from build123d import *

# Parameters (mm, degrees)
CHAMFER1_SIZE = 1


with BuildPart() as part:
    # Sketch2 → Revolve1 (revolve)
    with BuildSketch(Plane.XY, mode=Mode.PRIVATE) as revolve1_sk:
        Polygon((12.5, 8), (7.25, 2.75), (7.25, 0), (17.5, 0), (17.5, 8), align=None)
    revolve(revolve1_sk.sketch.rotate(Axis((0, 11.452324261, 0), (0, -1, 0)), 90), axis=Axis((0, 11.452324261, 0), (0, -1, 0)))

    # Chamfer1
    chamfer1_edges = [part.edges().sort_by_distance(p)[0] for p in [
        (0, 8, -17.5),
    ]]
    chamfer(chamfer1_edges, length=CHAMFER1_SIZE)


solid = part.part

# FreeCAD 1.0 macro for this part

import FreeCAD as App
import Part
import Sketcher
from FreeCAD import Vector
Q = App.Units.Quantity


def edges_at(feature, points):
    """Names of the edges that pass closest to the given points."""
    edges = feature.Shape.Edges
    near = lambda p: min(range(len(edges)), key=lambda i: edges[i].distToShape(Part.Vertex(*p))[0])
    return sorted({f"Edge{near(p) + 1}" for p in points})

doc = App.newDocument("Part")
body = doc.addObject("PartDesign::Body", "Body")

# Sketch on XY plane
sketch1 = body.newObject("Sketcher::SketchObject", "Sketch")
sketch1.AttachmentSupport = (doc.getObject("XY_Plane"), [""])
sketch1.MapMode = "FlatFace"
sketch1.addGeometry([
    Part.LineSegment(Vector(12.5, 8, 0), Vector(7.2, 2.8, 0)),  # 0
    Part.LineSegment(Vector(7.2, 2.8, 0), Vector(7.2, 0, 0)),  # 1
    Part.LineSegment(Vector(7.2, 0, 0), Vector(17.5, 0, 0)),  # 2
    Part.LineSegment(Vector(17.5, 0, 0), Vector(17.5, 8, 0)),  # 3
    Part.LineSegment(Vector(17.5, 8, 0), Vector(12.5, 8, 0)),  # 4
], False)
sketch1.addConstraint([
    Sketcher.Constraint("Coincident", 0, 2, 1, 1),
    Sketcher.Constraint("Coincident", 1, 2, 2, 1),
    Sketcher.Constraint("Coincident", 2, 2, 3, 1),
    Sketcher.Constraint("Coincident", 3, 2, 4, 1),
    Sketcher.Constraint("Coincident", 4, 2, 0, 1),
    Sketcher.Constraint("Vertical", 1),
    Sketcher.Constraint("Horizontal", 2),
    Sketcher.Constraint("Vertical", 3),
    Sketcher.Constraint("Horizontal", 4),
    Sketcher.Constraint("PointOnObject", 1, 2, -1),
    Sketcher.Constraint("DistanceX", 4, 2, 4, 1, 5.0),
    Sketcher.Constraint("DistanceY", 3, 1, 3, 2, 8.0),
    Sketcher.Constraint("Angle", 0, Q("-135 deg")),
    Sketcher.Constraint("DistanceX", 2, 1, 2, 2, 10.25),
    Sketcher.Constraint("DistanceX", -1, 1, 2, 2, 17.5),
])
revolution = body.newObject("PartDesign::Revolution", "Revolution")
revolution.Profile = sketch1
revolution.ReferenceAxis = (sketch1, ["V_Axis"])
revolution.Angle = 360
doc.recompute()

chamfer = body.newObject("PartDesign::Chamfer", "Chamfer")
chamfer.Base = (revolution, edges_at(revolution, [(0, 8, -17.5)]))
chamfer.Size = 1

doc.recompute()
